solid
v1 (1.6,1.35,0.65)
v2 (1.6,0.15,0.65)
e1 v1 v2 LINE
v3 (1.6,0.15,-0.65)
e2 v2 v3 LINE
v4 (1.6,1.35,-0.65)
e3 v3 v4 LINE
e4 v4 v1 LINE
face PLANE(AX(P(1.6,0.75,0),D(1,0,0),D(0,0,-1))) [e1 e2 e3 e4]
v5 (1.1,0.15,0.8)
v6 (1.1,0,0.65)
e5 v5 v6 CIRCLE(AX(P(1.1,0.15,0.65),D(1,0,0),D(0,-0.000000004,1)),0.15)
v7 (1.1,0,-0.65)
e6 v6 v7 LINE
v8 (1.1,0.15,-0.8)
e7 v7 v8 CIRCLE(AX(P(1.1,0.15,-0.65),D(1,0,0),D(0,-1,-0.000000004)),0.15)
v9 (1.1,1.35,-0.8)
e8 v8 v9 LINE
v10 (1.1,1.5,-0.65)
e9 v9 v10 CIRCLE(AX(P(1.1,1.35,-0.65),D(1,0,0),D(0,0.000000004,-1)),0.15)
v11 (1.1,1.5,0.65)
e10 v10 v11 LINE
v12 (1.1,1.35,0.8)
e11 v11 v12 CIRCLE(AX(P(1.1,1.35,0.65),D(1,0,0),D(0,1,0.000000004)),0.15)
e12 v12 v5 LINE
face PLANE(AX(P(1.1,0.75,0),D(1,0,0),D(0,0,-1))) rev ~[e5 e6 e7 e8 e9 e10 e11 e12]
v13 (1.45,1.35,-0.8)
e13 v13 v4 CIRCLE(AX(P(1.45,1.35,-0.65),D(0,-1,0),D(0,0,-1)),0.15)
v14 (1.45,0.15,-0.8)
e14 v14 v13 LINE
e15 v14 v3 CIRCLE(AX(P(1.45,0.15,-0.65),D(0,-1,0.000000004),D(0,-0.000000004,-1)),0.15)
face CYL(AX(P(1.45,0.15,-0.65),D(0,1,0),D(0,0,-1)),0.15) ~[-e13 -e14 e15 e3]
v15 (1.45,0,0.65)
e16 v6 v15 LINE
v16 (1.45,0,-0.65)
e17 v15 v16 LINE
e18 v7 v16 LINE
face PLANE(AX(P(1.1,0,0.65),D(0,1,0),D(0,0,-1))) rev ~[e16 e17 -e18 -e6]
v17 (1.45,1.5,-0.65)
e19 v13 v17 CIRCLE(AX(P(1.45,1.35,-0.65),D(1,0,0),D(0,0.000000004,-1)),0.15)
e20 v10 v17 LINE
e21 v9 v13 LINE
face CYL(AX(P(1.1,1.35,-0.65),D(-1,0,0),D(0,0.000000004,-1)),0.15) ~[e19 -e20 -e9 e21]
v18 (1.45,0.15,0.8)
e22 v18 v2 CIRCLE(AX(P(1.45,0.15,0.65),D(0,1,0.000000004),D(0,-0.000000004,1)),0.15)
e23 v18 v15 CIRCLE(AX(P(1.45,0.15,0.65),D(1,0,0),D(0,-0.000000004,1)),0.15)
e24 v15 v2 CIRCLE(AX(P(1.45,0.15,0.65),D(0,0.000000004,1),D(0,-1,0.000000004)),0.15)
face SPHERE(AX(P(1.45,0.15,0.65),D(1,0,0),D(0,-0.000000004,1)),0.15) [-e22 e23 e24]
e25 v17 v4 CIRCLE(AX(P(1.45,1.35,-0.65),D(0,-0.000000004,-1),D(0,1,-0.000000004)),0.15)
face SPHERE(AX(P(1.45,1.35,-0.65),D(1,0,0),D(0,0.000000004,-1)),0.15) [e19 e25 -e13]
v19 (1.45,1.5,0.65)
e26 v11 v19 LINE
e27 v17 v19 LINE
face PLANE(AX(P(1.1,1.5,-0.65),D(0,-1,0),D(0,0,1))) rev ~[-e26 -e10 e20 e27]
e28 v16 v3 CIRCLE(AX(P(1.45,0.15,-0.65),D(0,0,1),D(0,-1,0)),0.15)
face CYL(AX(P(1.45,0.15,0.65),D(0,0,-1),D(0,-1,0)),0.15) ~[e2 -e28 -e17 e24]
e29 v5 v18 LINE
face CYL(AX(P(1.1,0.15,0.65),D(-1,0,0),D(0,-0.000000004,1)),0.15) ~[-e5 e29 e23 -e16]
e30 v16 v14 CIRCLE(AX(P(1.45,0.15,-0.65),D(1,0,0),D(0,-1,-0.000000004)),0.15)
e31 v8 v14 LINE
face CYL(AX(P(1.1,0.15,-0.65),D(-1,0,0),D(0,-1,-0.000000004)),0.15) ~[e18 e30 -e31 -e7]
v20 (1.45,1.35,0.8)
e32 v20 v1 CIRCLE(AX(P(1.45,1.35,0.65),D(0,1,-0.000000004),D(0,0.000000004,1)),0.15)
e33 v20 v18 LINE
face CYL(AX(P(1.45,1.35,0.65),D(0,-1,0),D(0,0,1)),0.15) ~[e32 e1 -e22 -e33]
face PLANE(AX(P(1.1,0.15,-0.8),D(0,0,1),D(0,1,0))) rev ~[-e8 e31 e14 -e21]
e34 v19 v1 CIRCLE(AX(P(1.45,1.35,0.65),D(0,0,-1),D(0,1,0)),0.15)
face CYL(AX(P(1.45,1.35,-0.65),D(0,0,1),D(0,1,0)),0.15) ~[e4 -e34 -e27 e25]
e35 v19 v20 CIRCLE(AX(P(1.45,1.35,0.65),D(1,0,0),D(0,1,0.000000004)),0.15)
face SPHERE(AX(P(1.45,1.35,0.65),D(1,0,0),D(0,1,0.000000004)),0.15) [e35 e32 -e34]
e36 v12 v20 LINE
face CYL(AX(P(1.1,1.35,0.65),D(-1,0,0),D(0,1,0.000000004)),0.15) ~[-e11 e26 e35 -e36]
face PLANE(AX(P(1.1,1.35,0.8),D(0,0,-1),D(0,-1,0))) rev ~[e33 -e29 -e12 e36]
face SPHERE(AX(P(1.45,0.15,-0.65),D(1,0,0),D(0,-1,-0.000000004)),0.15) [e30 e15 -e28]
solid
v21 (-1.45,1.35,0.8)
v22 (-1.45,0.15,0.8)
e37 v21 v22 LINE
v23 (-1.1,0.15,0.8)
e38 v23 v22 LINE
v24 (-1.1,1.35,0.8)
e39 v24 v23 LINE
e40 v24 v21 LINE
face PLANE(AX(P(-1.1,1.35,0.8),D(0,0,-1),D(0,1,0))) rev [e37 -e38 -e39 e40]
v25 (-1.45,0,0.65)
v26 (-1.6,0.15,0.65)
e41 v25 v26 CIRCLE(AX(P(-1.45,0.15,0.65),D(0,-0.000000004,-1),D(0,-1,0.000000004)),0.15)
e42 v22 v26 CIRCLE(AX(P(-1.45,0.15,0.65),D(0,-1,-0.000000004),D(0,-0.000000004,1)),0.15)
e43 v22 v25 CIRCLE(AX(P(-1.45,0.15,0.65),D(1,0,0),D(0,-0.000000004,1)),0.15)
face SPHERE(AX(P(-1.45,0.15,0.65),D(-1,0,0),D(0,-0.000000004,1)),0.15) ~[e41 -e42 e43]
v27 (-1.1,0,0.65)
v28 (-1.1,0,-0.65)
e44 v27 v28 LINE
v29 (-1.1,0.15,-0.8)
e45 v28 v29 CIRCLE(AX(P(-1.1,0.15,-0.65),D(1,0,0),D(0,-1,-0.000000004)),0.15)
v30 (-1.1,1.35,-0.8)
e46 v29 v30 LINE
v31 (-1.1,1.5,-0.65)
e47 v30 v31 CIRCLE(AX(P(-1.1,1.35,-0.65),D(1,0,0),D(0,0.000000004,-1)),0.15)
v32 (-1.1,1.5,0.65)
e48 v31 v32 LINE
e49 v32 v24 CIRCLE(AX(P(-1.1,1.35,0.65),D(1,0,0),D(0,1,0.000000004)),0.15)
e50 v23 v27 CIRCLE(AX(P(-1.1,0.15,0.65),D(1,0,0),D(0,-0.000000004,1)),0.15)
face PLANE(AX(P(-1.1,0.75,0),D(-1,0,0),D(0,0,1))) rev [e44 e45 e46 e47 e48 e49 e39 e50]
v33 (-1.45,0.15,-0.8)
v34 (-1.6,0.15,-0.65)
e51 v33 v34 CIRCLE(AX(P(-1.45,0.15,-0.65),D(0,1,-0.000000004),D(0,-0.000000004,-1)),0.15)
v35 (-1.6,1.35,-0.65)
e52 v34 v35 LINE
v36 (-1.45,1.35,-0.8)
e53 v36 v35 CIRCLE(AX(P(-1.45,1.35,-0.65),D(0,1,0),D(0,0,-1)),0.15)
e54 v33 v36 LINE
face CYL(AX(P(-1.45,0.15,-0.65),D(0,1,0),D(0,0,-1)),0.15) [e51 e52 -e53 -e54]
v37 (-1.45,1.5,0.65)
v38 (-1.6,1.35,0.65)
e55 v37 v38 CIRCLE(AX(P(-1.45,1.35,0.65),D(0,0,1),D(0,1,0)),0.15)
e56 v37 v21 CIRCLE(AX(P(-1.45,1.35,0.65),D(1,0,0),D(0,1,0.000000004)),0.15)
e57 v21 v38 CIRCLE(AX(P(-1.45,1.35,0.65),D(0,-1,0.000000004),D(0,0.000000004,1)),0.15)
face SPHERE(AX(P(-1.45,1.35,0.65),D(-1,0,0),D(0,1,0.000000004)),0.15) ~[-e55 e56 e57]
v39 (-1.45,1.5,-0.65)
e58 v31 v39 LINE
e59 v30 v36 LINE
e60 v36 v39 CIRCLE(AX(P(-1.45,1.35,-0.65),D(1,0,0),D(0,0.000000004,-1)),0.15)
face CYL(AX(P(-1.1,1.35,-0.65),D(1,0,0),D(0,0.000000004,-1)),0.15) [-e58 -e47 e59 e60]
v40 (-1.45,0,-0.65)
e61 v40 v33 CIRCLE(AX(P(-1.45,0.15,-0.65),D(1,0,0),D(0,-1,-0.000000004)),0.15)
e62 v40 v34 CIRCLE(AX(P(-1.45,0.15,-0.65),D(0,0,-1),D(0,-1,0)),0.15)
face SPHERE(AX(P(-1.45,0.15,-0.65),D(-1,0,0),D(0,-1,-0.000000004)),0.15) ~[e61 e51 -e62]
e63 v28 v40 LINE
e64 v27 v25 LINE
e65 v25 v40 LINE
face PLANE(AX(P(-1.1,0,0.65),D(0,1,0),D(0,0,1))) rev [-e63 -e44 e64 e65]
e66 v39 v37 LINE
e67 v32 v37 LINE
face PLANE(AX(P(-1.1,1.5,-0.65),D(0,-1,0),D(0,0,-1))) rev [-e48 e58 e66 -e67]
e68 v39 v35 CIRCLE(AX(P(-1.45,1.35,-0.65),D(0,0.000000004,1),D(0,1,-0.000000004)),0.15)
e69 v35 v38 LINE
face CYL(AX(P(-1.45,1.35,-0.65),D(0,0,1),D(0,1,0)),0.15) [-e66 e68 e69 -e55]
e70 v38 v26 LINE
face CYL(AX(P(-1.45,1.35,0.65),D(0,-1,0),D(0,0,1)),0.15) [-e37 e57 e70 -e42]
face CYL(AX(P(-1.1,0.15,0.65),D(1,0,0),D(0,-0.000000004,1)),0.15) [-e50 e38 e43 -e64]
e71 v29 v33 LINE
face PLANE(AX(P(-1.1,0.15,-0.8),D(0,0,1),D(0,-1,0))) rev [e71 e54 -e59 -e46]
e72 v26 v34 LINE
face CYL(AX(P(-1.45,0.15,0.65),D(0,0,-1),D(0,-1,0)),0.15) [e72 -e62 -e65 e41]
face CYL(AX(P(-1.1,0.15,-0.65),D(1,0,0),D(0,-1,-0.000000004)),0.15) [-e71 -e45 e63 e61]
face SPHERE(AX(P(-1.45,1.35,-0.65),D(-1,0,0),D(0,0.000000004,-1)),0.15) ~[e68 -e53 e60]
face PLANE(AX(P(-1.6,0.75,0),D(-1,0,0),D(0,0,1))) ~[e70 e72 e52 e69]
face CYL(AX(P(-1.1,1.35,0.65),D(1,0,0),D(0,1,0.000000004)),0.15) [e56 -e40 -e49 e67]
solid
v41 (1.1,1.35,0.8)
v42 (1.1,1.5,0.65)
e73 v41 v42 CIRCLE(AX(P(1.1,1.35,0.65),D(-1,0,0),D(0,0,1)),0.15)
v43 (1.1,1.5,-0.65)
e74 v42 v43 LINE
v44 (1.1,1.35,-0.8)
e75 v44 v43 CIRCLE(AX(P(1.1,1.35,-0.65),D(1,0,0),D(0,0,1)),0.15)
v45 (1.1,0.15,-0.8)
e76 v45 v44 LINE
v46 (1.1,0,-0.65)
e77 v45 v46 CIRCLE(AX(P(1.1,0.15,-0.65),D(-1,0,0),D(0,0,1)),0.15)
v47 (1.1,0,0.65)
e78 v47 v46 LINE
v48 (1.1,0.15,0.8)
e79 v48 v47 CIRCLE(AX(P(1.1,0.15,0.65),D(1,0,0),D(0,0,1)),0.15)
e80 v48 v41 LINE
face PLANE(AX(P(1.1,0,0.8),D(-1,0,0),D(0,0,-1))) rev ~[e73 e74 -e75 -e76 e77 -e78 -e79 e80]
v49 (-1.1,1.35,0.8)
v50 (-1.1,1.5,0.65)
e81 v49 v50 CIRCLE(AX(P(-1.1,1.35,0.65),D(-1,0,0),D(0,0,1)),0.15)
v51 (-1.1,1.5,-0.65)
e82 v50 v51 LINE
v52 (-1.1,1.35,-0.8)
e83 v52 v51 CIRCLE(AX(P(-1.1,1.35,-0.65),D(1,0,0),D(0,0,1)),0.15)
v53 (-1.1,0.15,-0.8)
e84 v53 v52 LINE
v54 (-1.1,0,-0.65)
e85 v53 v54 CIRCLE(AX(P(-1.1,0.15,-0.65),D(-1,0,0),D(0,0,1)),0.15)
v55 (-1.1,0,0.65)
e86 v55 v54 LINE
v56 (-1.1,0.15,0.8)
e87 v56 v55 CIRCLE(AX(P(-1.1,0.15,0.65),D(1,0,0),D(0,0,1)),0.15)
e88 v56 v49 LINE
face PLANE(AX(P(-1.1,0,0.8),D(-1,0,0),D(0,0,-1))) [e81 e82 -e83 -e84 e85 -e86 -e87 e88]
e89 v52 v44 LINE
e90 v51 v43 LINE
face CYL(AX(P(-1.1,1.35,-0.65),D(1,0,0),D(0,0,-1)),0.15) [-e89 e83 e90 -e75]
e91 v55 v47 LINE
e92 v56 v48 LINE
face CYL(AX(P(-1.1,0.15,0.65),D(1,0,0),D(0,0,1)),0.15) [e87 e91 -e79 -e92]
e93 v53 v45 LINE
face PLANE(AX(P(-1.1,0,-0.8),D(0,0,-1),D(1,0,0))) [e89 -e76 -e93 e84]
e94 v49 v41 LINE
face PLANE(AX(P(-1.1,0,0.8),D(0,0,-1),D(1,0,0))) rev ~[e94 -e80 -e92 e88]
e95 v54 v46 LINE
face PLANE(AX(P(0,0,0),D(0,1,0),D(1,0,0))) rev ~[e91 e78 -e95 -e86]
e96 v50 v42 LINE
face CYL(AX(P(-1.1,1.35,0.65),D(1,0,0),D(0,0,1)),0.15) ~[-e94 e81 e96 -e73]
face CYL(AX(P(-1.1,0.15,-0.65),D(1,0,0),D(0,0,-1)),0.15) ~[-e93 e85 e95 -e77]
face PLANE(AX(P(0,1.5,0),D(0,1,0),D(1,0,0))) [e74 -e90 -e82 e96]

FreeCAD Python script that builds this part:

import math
import FreeCAD as App
import Part
import Sketcher
from FreeCAD import Vector
Q = App.Units.Quantity


def edges_at(feature, points):
    """Names of the edges that pass closest to the given points."""
    edges = feature.Shape.Edges
    near = lambda p: min(range(len(edges)), key=lambda i: edges[i].distToShape(Part.Vertex(*p))[0])
    return sorted({f"Edge{near(p) + 1}" for p in points})


def add_polygon(sketch, points):
    """Adds a closed chain of lines whose ends are joined by coincident constraints."""
    first, n = sketch.GeometryCount, len(points)
    for a, b in zip(points, points[1:] + points[:1]):
        sketch.addGeometry(Part.LineSegment(App.Vector(*a, 0), App.Vector(*b, 0)), False)
    for i in range(n):
        sketch.addConstraint(Sketcher.Constraint("Coincident", first + i, 2, first + (i + 1) % n, 1))

doc = App.newDocument("Part")
params = doc.addObject("Spreadsheet::Sheet", "Params")
for row, (alias, value) in enumerate([
    ("sketch1_width", "2.2 mm"),
    ("sketch1_height", "1.6 mm"),
    ("pad1_length", "1.5 mm"),
    ("fillet_radius", "0.15 mm"),
    ("sketch2_radius", "0.15 mm"),
    ("sketch2_width", "1.2 mm"),
    ("sketch2_height", "1.3 mm"),
    ("pad2_length", "0.5 mm"),
    ("fillet2_radius", "0.15 mm"),
], start=1):
    params.set(f"A{row}", alias)
    params.set(f"B{row}", "=" + value)
    params.setAlias(f"B{row}", alias)

body = doc.addObject("PartDesign::Body", "Body")

sketch1 = doc.addObject("Sketcher::SketchObject", "Sketch")
body.addObject(sketch1)
sketch1.AttachmentSupport = (doc.XZ_Plane, [""])
sketch1.MapMode = "FlatFace"
add_polygon(sketch1, [(-1.1, -0.8), (-1.1, 0.8), (1.1, 0.8), (1.1, -0.8)])
sketch1.addConstraint(Sketcher.Constraint("Vertical", 0))
sketch1.addConstraint(Sketcher.Constraint("Horizontal", 1))
sketch1.addConstraint(Sketcher.Constraint("Vertical", 2))
sketch1.addConstraint(Sketcher.Constraint("Horizontal", 3))
sketch1.addConstraint(Sketcher.Constraint("Symmetric", 0, 2, 2, 2, -1, 1))
sketch1.addConstraint(Sketcher.Constraint("DistanceX", 1, 1, 1, 2, Q("2.2 mm")))
sketch1.addConstraint(Sketcher.Constraint("DistanceY", 0, 1, 0, 2, Q("1.6 mm")))
sketch1.setExpression("Constraints[9]", "Params.sketch1_width")
sketch1.setExpression("Constraints[10]", "Params.sketch1_height")
pad1 = doc.addObject("PartDesign::Pad", "Pad")
body.addObject(pad1)
pad1.Profile = sketch1
pad1.setExpression("Length", "Params.pad1_length")
pad1.Reversed = True
doc.recompute()

fillet = doc.addObject("PartDesign::Fillet", "Fillet")
body.addObject(fillet)
fillet.Base = (pad1, edges_at(pad1, [
    (0, 1.5, -0.8),
    (0, 0, -0.8),
    (0, 0, 0.8),
    (0, 1.5, 0.8),
]))
fillet.setExpression("Radius", "Params.fillet_radius")
body2 = doc.addObject("PartDesign::Body", "Body001")

sketch2 = doc.addObject("Sketcher::SketchObject", "Sketch001")
body2.addObject(sketch2)
sketch2.AttachmentSupport = (doc.getObject("YZ_Plane001"), [""])
sketch2.MapMode = "FlatFace"
sketch2.AttachmentOffset = App.Placement(Vector(0, 0, 1.1), App.Rotation())
sketch2.addGeometry(Part.LineSegment(Vector(1.35, 0.8, 0), Vector(0.15, 0.8, 0)), False)
sketch2.addGeometry(Part.ArcOfCircle(Part.Circle(Vector(0.15, 0.65, 0), Vector(0, 0, 1), 0.15), math.radians(90), math.radians(180)), False)
sketch2.addGeometry(Part.LineSegment(Vector(0, 0.65, 0), Vector(0, -0.65, 0)), False)
sketch2.addGeometry(Part.ArcOfCircle(Part.Circle(Vector(0.15, -0.65, 0), Vector(0, 0, 1), 0.15), math.radians(-180), math.radians(-90)), False)
sketch2.addGeometry(Part.LineSegment(Vector(0.15, -0.8, 0), Vector(1.35, -0.8, 0)), False)
sketch2.addGeometry(Part.ArcOfCircle(Part.Circle(Vector(1.35, -0.65, 0), Vector(0, 0, 1), 0.15), math.radians(-90), math.radians(0)), False)
sketch2.addGeometry(Part.LineSegment(Vector(1.5, -0.65, 0), Vector(1.5, 0.65, 0)), False)
sketch2.addGeometry(Part.ArcOfCircle(Part.Circle(Vector(1.35, 0.65, 0), Vector(0, 0, 1), 0.15), math.radians(0), math.radians(90)), False)
sketch2.addConstraint(Sketcher.Constraint("Tangent", 0, 2, 1, 1))
sketch2.addConstraint(Sketcher.Constraint("Tangent", 1, 2, 2, 1))
sketch2.addConstraint(Sketcher.Constraint("Tangent", 2, 2, 3, 1))
sketch2.addConstraint(Sketcher.Constraint("Tangent", 3, 2, 4, 1))
sketch2.addConstraint(Sketcher.Constraint("Tangent", 4, 2, 5, 1))
sketch2.addConstraint(Sketcher.Constraint("Tangent", 5, 2, 6, 1))
sketch2.addConstraint(Sketcher.Constraint("Tangent", 6, 2, 7, 1))
sketch2.addConstraint(Sketcher.Constraint("Tangent", 7, 2, 0, 1))
sketch2.addConstraint(Sketcher.Constraint("Horizontal", 0))
sketch2.addConstraint(Sketcher.Constraint("Vertical", 2))
sketch2.addConstraint(Sketcher.Constraint("Horizontal", 4))
sketch2.addConstraint(Sketcher.Constraint("Vertical", 6))
sketch2.addConstraint(Sketcher.Constraint("Equal", 1, 3))
sketch2.addConstraint(Sketcher.Constraint("Equal", 3, 5))
sketch2.addConstraint(Sketcher.Constraint("Equal", 5, 7))
sketch2.addConstraint(Sketcher.Constraint("Symmetric", 1, 2, 2, 2, -1, 1))
sketch2.addConstraint(Sketcher.Constraint("Radius", 1, Q("0.15 mm")))
sketch2.addConstraint(Sketcher.Constraint("DistanceX", 0, 2, 0, 1, Q("1.2 mm")))
sketch2.addConstraint(Sketcher.Constraint("DistanceY", 2, 2, 2, 1, Q("1.3 mm")))
sketch2.setExpression("Constraints[16]", "Params.sketch2_radius")
sketch2.setExpression("Constraints[17]", "Params.sketch2_width")
sketch2.setExpression("Constraints[18]", "Params.sketch2_height")
pad2 = doc.addObject("PartDesign::Pad", "Pad001")
body2.addObject(pad2)
pad2.Profile = sketch2
pad2.setExpression("Length", "Params.pad2_length")
doc.recompute()

fillet2 = doc.addObject("PartDesign::Fillet", "Fillet001")
body2.addObject(fillet2)
fillet2.Base = (pad2, edges_at(pad2, [
    (1.6, 0.044, 0.756),
    (1.6, 0, 0),
    (1.6, 0.044, -0.756),
    (1.6, 0.75, -0.8),
    (1.6, 1.456, -0.756),
    (1.6, 1.5, 0),
    (1.6, 1.456, 0.756),
    (1.6, 0.75, 0.8),
]))
fillet2.setExpression("Radius", "Params.fillet2_radius")
body3 = doc.addObject("PartDesign::Body", "Body002")
doc.recompute()

mirroring = doc.addObject("Part::Mirroring", "Mirroring")
mirroring.Source = body2
mirroring.Base = Vector(0, 0, 0)
mirroring.Normal = Vector(1, 0, 0)
body3.BaseFeature = mirroring
doc.recompute()
mirroring.Visibility = False

doc.recompute()
